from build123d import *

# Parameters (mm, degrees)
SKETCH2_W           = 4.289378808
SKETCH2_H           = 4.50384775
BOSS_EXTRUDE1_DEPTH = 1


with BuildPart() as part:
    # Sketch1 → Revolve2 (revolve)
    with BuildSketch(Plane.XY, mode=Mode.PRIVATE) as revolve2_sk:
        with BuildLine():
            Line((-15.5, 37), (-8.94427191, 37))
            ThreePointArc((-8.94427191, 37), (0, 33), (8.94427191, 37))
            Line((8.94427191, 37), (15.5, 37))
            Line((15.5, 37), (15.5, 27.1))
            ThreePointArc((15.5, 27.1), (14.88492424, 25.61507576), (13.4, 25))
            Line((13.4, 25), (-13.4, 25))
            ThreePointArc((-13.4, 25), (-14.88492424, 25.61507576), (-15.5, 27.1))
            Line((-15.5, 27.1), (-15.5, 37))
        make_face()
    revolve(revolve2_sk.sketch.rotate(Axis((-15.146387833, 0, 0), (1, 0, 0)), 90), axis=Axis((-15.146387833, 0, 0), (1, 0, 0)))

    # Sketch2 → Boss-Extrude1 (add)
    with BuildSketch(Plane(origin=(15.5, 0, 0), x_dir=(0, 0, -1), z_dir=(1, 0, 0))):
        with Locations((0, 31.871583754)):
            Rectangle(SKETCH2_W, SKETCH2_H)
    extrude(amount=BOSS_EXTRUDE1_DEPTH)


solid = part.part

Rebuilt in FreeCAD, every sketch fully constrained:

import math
import FreeCAD as App
import Part
import Sketcher


def add_polygon(sketch, points):
    """Adds a closed chain of lines whose ends are joined by coincident constraints."""
    first, n = sketch.GeometryCount, len(points)
    for a, b in zip(points, points[1:] + points[:1]):
        sketch.addGeometry(Part.LineSegment(App.Vector(*a, 0), App.Vector(*b, 0)), False)
    for i in range(n):
        sketch.addConstraint(Sketcher.Constraint("Coincident", first + i, 2, first + (i + 1) % n, 1))

doc = App.newDocument("Part")
params = doc.addObject("Spreadsheet::Sheet", "Params")
for row, (alias, value) in enumerate([
    ("sketch1_radius", "12 mm"),
    ("sketch1_radius2", "2.1 mm"),
    ("sketch1_width", "26.8 mm"),
    ("sketch1_height", "9.9 mm"),
    ("revolution_angle", "360 deg"),
    ("pad1_length", "1 mm"),
], start=1):
    params.set(f"A{row}", alias)
    params.set(f"B{row}", "=" + value)
    params.setAlias(f"B{row}", alias)

body = doc.addObject("PartDesign::Body", "Body")

# Sketch on XY plane
sketch1 = body.newObject("Sketcher::SketchObject", "Sketch")
sketch1.AttachmentSupport = (doc.getObject("XY_Plane"), [""])
sketch1.MapMode = "FlatFace"
sketch1.addGeometry([
    Part.LineSegment(App.Vector(-8.9, 37, 0), App.Vector(-15.5, 37, 0)),  # 0
    Part.LineSegment(App.Vector(-15.5, 37, 0), App.Vector(-15.5, 27.1, 0)),  # 1
    Part.ArcOfCircle(Part.Circle(App.Vector(-13.4, 27.1, 0), App.Vector(0, 0, 1), 2.1), math.radians(-180), math.radians(-90)),  # 2
    Part.LineSegment(App.Vector(-13.4, 25, 0), App.Vector(13.4, 25, 0)),  # 3
    Part.ArcOfCircle(Part.Circle(App.Vector(13.4, 27.1, 0), App.Vector(0, 0, 1), 2.1), math.radians(-90), math.radians(0)),  # 4
    Part.LineSegment(App.Vector(15.5, 27.1, 0), App.Vector(15.5, 37, 0)),  # 5
    Part.LineSegment(App.Vector(15.5, 37, 0), App.Vector(8.9, 37, 0)),  # 6
    Part.ArcOfCircle(Part.Circle(App.Vector(0, 45, 0), App.Vector(0, 0, 1), 12), math.radians(-138), math.radians(-42)),  # 7
], False)
sketch1.addConstraint([
    Sketcher.Constraint("Coincident", 0, 2, 1, 1),
    Sketcher.Constraint("Tangent", 1, 2, 2, 1),
    Sketcher.Constraint("Tangent", 2, 2, 3, 1),
    Sketcher.Constraint("Tangent", 3, 2, 4, 1),
    Sketcher.Constraint("Tangent", 4, 2, 5, 1),
    Sketcher.Constraint("Coincident", 5, 2, 6, 1),
    Sketcher.Constraint("Coincident", 6, 2, 7, 2),
    Sketcher.Constraint("Coincident", 7, 1, 0, 1),
    Sketcher.Constraint("Horizontal", 0),
    Sketcher.Constraint("Vertical", 1),
    Sketcher.Constraint("Horizontal", 3),
    Sketcher.Constraint("Vertical", 5),
    Sketcher.Constraint("Horizontal", 6),
    Sketcher.Constraint("Equal", 2, 4),
    Sketcher.Constraint("Symmetric", 0, 2, 5, 2, -2),
    Sketcher.Constraint("PointOnObject", 7, 3, -2),
    Sketcher.Constraint("Radius", 7, 12.0),
    Sketcher.Constraint("Radius", 2, 2.1),
    Sketcher.Constraint("DistanceX", 3, 1, 3, 2, 26.8),
    Sketcher.Constraint("DistanceY", 1, 2, 1, 1, 9.9),
    Sketcher.Constraint("DistanceY", -1, 1, 7, 3, 45.0),
    Sketcher.Constraint("DistanceY", -1, 1, 0, 2, 37.0),
])
sketch1.setExpression("Constraints[16]", "Params.sketch1_radius")
sketch1.setExpression("Constraints[17]", "Params.sketch1_radius2")
sketch1.setExpression("Constraints[18]", "Params.sketch1_width")
sketch1.setExpression("Constraints[19]", "Params.sketch1_height")
revolution = body.newObject("PartDesign::Revolution", "Revolution")
revolution.Profile = sketch1
revolution.ReferenceAxis = (sketch1, ["H_Axis"])
revolution.setExpression("Angle", "Params.revolution_angle")

# Sketch on YZ plane
sketch2 = body.newObject("Sketcher::SketchObject", "Sketch001")
sketch2.AttachmentSupport = (doc.getObject("YZ_Plane"), [""])
sketch2.MapMode = "FlatFace"
sketch2.AttachmentOffset = App.Placement(App.Vector(0, 0, 15.5), App.Rotation())
add_polygon(sketch2, [(34.1, 2.1), (29.6, 2.1), (29.6, -2.1), (34.1, -2.1)])  # lines 0-3
sketch2.addConstraint([
    Sketcher.Constraint("Horizontal", 0),
    Sketcher.Constraint("Vertical", 1),
    Sketcher.Constraint("Horizontal", 2),
    Sketcher.Constraint("Vertical", 3),
    Sketcher.Constraint("DistanceY", 1, 2, 1, 1, 4.289379),
    Sketcher.Constraint("DistanceX", 0, 2, 0, 1, 4.503848),
    Sketcher.Constraint("DistanceX", -1, 1, 0, 2, 29.61966),
    Sketcher.Constraint("DistanceY", -1, 1, 0, 2, 2.144689),
])
pad1 = body.newObject("PartDesign::Pad", "Pad")
pad1.Profile = sketch2
pad1.setExpression("Length", "Params.pad1_length")

doc.recompute()
